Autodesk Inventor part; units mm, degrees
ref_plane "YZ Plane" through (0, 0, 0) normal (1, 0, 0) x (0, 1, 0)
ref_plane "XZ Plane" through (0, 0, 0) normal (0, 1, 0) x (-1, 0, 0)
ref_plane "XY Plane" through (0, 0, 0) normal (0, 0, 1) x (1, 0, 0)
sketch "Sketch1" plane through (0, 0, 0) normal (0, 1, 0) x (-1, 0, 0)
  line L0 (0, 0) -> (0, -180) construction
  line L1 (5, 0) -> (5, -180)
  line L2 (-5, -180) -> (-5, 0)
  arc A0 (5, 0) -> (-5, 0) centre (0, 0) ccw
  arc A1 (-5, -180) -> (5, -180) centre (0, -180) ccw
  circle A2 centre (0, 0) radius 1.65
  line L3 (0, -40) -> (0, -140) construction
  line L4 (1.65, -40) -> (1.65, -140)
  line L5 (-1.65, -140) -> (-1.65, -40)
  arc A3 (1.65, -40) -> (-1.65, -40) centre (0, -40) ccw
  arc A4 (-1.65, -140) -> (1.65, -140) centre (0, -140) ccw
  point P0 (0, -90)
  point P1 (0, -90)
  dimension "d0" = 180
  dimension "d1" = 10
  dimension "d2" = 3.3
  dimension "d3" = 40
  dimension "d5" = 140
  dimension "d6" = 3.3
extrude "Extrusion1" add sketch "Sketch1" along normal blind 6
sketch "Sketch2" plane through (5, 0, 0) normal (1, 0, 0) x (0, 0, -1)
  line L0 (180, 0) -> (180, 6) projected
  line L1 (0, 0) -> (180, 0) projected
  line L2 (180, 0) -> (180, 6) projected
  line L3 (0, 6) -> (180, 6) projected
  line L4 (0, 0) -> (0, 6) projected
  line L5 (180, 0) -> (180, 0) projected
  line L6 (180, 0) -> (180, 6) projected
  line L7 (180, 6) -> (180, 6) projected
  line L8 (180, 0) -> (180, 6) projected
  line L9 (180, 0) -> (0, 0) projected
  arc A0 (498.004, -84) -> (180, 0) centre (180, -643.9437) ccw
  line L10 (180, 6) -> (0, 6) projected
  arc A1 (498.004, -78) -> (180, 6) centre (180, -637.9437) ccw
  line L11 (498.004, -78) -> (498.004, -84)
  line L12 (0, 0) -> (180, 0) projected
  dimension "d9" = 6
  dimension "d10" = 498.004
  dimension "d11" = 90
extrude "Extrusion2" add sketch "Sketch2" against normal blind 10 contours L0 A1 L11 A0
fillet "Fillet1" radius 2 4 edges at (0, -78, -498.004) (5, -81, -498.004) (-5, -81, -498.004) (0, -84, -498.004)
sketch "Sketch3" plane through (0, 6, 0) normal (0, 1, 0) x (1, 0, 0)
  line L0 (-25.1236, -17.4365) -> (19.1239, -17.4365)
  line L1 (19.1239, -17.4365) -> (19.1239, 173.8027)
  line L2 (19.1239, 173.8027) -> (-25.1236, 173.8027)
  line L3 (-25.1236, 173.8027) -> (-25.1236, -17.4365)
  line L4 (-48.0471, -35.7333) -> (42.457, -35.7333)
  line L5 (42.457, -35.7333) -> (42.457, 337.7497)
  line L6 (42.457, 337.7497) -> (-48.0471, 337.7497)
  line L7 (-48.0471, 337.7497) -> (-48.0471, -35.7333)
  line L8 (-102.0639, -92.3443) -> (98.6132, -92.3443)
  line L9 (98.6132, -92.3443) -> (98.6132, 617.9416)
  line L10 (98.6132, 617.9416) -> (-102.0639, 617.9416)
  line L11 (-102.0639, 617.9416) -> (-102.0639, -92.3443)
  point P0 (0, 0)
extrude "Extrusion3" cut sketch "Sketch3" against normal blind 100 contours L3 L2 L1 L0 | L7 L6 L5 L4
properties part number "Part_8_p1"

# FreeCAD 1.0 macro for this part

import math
import FreeCAD as App
import Part
import Sketcher

V = App.Vector
Q = App.Units.Quantity


def edges_at(feature, points):
    """Names of the edges that pass closest to the given points."""
    edges = feature.Shape.Edges
    near = lambda p: min(range(len(edges)), key=lambda i: edges[i].distToShape(Part.Vertex(*p))[0])
    return sorted({f"Edge{near(p) + 1}" for p in points})


def add_polygon(sketch, points):
    """Adds a closed chain of lines whose ends are joined by coincident constraints."""
    first, n = sketch.GeometryCount, len(points)
    for a, b in zip(points, points[1:] + points[:1]):
        sketch.addGeometry(Part.LineSegment(App.Vector(*a, 0), App.Vector(*b, 0)), False)
    for i in range(n):
        sketch.addConstraint(Sketcher.Constraint("Coincident", first + i, 2, first + (i + 1) % n, 1))

doc = App.newDocument("Part")
params = doc.addObject("Spreadsheet::Sheet", "Params")
for row, (alias, value) in enumerate([
    ("sketch1_radius", "5 mm"),
    ("sketch1_diameter", "3.3 mm"),
    ("sketch1_height", "180 mm"),
    ("pad1_length", "6 mm"),
    ("sketch2_width", "6 mm"),
    ("pad2_length", "10 mm"),
    ("fillet_radius", "2 mm"),
    ("pocket1_length", "100 mm"),
], start=1):
    params.set(f"A{row}", alias)
    params.set(f"B{row}", "=" + value)
    params.setAlias(f"B{row}", alias)

body = doc.addObject("PartDesign::Body", "Body")

sketch1 = body.newObject("Sketcher::SketchObject", "Sketch")
sketch1.AttachmentSupport = (doc.getObject("XZ_Plane"), [""])
sketch1.MapMode = "FlatFace"
sketch1.addGeometry(Part.LineSegment(V(-5, -180, 0), V(-5, 0, 0)), False)
sketch1.addGeometry(Part.ArcOfCircle(Part.Circle(V(0, 0, 0), V(0, 0, 1), 5), math.radians(0), math.radians(180)), False)
sketch1.addGeometry(Part.LineSegment(V(5, 0, 0), V(5, -180, 0)), False)
sketch1.addGeometry(Part.ArcOfCircle(Part.Circle(V(0, -180, 0), V(0, 0, 1), 5), math.radians(180), math.radians(360)), False)
sketch1.addGeometry(Part.ArcOfCircle(Part.Circle(V(0, -40, 0), V(0, 0, 1), 1.6), math.radians(0), math.radians(180)), False)
sketch1.addGeometry(Part.LineSegment(V(-1.6, -40, 0), V(-1.6, -140, 0)), False)
sketch1.addGeometry(Part.ArcOfCircle(Part.Circle(V(0, -140, 0), V(0, 0, 1), 1.6), math.radians(180), math.radians(360)), False)
sketch1.addGeometry(Part.LineSegment(V(1.6, -140, 0), V(1.6, -40, 0)), False)
sketch1.addGeometry(Part.Circle(V(0, 0, 0), V(0, 0, 1), 1.6), False)
sketch1.addConstraint(Sketcher.Constraint("Tangent", 0, 2, 1, 2))
sketch1.addConstraint(Sketcher.Constraint("Tangent", 1, 1, 2, 1))
sketch1.addConstraint(Sketcher.Constraint("Tangent", 2, 2, 3, 2))
sketch1.addConstraint(Sketcher.Constraint("Tangent", 3, 1, 0, 1))
sketch1.addConstraint(Sketcher.Constraint("Tangent", 4, 2, 5, 1))
sketch1.addConstraint(Sketcher.Constraint("Tangent", 5, 2, 6, 1))
sketch1.addConstraint(Sketcher.Constraint("Tangent", 6, 2, 7, 1))
sketch1.addConstraint(Sketcher.Constraint("Tangent", 7, 2, 4, 1))
sketch1.addConstraint(Sketcher.Constraint("Vertical", 0))
sketch1.addConstraint(Sketcher.Constraint("Vertical", 2))
sketch1.addConstraint(Sketcher.Constraint("Vertical", 5))
sketch1.addConstraint(Sketcher.Constraint("Vertical", 7))
sketch1.addConstraint(Sketcher.Constraint("Coincident", 1, 3, -1, 1))
sketch1.addConstraint(Sketcher.Constraint("Coincident", 8, 3, -1, 1))
sketch1.addConstraint(Sketcher.Constraint("Equal", 6, 8))
sketch1.addConstraint(Sketcher.Constraint("PointOnObject", 4, 3, -2))
sketch1.addConstraint(Sketcher.Constraint("Radius", 1, Q("5 mm")))
sketch1.addConstraint(Sketcher.Constraint("Diameter", 8, Q("3.3 mm")))
sketch1.addConstraint(Sketcher.Constraint("DistanceY", 0, 1, 0, 2, Q("180 mm")))
sketch1.addConstraint(Sketcher.Constraint("DistanceY", 4, 3, -1, 1, Q("40 mm")))
sketch1.addConstraint(Sketcher.Constraint("DistanceY", 6, 3, -1, 1, Q("140 mm")))
sketch1.setExpression("Constraints[16]", "Params.sketch1_radius")
sketch1.setExpression("Constraints[17]", "Params.sketch1_diameter")
sketch1.setExpression("Constraints[18]", "Params.sketch1_height")
pad1 = body.newObject("PartDesign::Pad", "Pad")
pad1.Profile = sketch1
pad1.setExpression("Length", "Params.pad1_length")
pad1.Reversed = True

sketch2 = body.newObject("Sketcher::SketchObject", "Sketch001")
sketch2.AttachmentSupport = (doc.getObject("YZ_Plane"), [""])
sketch2.MapMode = "FlatFace"
sketch2.AttachmentOffset = App.Placement(V(0, 0, 5), App.Rotation())
sketch2.addGeometry(Part.LineSegment(V(6, -180, 0), V(0, -180, 0)), False)
sketch2.addGeometry(Part.ArcOfCircle(Part.Circle(V(-644, -180, 0), V(0, 0, 1), 644), math.radians(-30), math.radians(0)), False)
sketch2.addGeometry(Part.LineSegment(V(-84, -498, 0), V(-78, -498, 0)), False)
sketch2.addGeometry(Part.ArcOfCircle(Part.Circle(V(-638, -180, 0), V(0, 0, 1), 644), math.radians(-30), math.radians(0)), False)
sketch2.addConstraint(Sketcher.Constraint("Coincident", 0, 2, 1, 2))
sketch2.addConstraint(Sketcher.Constraint("Coincident", 1, 1, 2, 1))
sketch2.addConstraint(Sketcher.Constraint("Coincident", 2, 2, 3, 1))
sketch2.addConstraint(Sketcher.Constraint("Coincident", 3, 2, 0, 1))
sketch2.addConstraint(Sketcher.Constraint("Horizontal", 0))
sketch2.addConstraint(Sketcher.Constraint("Horizontal", 2))
sketch2.addConstraint(Sketcher.Constraint("Equal", 1, 3))
sketch2.addConstraint(Sketcher.Constraint("PointOnObject", 0, 2, -2))
sketch2.addConstraint(Sketcher.Constraint("Horizontal", 1, 3, 3, 3))
sketch2.addConstraint(Sketcher.Constraint("Horizontal", 3, 3, 0, 2))
sketch2.addConstraint(Sketcher.Constraint("DistanceX", 0, 2, 0, 1, Q("6 mm")))
sketch2.addConstraint(Sketcher.Constraint("DistanceY", 1, 3, -1, 1, Q("180 mm")))
sketch2.addConstraint(Sketcher.Constraint("DistanceY", 2, 2, -1, 1, Q("498.004 mm")))
sketch2.addConstraint(Sketcher.Constraint("DistanceX", 2, 2, -1, 1, Q("78 mm")))
sketch2.setExpression("Constraints[10]", "Params.sketch2_width")
pad2 = body.newObject("PartDesign::Pad", "Pad001")
pad2.Profile = sketch2
pad2.setExpression("Length", "Params.pad2_length")
pad2.Reversed = True
doc.recompute()

fillet = body.newObject("PartDesign::Fillet", "Fillet")
fillet.Base = (pad2, edges_at(pad2, [
    (0, -78, -498.004),
    (5, -81, -498.004),
    (-5, -81, -498.004),
    (0, -84, -498.004),
]))
fillet.setExpression("Radius", "Params.fillet_radius")

sketch3 = body.newObject("Sketcher::SketchObject", "Sketch002")
sketch3.AttachmentSupport = (doc.getObject("XZ_Plane"), [""])
sketch3.MapMode = "FlatFace"
sketch3.AttachmentOffset = App.Placement(V(0, 0, -6), App.Rotation())
add_polygon(sketch3, [(-48, -338), (-48, 36), (42, 36), (42, -338)])
sketch3.addConstraint(Sketcher.Constraint("Vertical", 0))
sketch3.addConstraint(Sketcher.Constraint("Horizontal", 1))
sketch3.addConstraint(Sketcher.Constraint("Vertical", 2))
sketch3.addConstraint(Sketcher.Constraint("Horizontal", 3))
sketch3.addConstraint(Sketcher.Constraint("DistanceX", 1, 1, 1, 2, Q("90.504 mm")))
sketch3.addConstraint(Sketcher.Constraint("DistanceY", 0, 1, 0, 2, Q("373.483 mm")))
sketch3.addConstraint(Sketcher.Constraint("DistanceX", 0, 2, -1, 1, Q("48.047 mm")))
sketch3.addConstraint(Sketcher.Constraint("DistanceY", -1, 1, 0, 2, Q("35.7333 mm")))
pocket1 = body.newObject("PartDesign::Pocket", "Pocket")
pocket1.Profile = sketch3
pocket1.setExpression("Length", "Params.pocket1_length")
pocket1.Reversed = True

doc.recompute()
